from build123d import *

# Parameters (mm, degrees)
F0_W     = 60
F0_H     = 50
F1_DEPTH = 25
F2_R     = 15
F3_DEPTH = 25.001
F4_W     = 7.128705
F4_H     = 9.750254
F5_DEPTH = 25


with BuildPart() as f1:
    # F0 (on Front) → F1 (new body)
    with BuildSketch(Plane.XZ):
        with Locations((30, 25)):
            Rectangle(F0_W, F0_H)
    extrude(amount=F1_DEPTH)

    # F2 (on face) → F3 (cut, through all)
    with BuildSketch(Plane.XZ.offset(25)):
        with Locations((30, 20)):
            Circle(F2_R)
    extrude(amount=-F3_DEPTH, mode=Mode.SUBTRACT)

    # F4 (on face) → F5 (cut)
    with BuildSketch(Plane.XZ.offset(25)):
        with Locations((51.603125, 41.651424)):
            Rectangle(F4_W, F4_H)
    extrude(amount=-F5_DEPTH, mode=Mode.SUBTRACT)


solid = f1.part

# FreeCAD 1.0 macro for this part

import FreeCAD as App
import Part
import Sketcher

doc = App.newDocument("Part")
params = doc.addObject("Spreadsheet::Sheet", "Params")
for row, (alias, value) in enumerate([
    ("sketch1_width", "60 mm"),
    ("sketch1_height", "50 mm"),
    ("pad1_length", "25 mm"),
    ("sketch2_diameter", "30 mm"),
    ("pocket2_length", "25 mm"),
], start=1):
    params.set(f"A{row}", alias)
    params.set(f"B{row}", "=" + value)
    params.setAlias(f"B{row}", alias)

body = doc.addObject("PartDesign::Body", "Body")

# Sketch on XZ plane
sketch1 = body.newObject("Sketcher::SketchObject", "Sketch")
sketch1.AttachmentSupport = (doc.getObject("XZ_Plane"), [""])
sketch1.MapMode = "FlatFace"
sketch1.addGeometry(Part.LineSegment(App.Vector(0, 50, 0), App.Vector(0, 0, 0)), False)
sketch1.addGeometry(Part.LineSegment(App.Vector(0, 0, 0), App.Vector(60, 0, 0)), False)
sketch1.addGeometry(Part.LineSegment(App.Vector(60, 0, 0), App.Vector(60, 50, 0)), False)
sketch1.addGeometry(Part.LineSegment(App.Vector(60, 50, 0), App.Vector(0, 50, 0)), False)
sketch1.addConstraint(Sketcher.Constraint("Coincident", 0, 2, 1, 1))
sketch1.addConstraint(Sketcher.Constraint("Coincident", 1, 2, 2, 1))
sketch1.addConstraint(Sketcher.Constraint("Coincident", 2, 2, 3, 1))
sketch1.addConstraint(Sketcher.Constraint("Coincident", 3, 2, 0, 1))
sketch1.addConstraint(Sketcher.Constraint("Vertical", 0))
sketch1.addConstraint(Sketcher.Constraint("Horizontal", 1))
sketch1.addConstraint(Sketcher.Constraint("Vertical", 2))
sketch1.addConstraint(Sketcher.Constraint("Horizontal", 3))
sketch1.addConstraint(Sketcher.Constraint("Coincident", 0, 2, -1, 1))
sketch1.addConstraint(Sketcher.Constraint("DistanceX", 1, 1, 1, 2, 60.0))
sketch1.addConstraint(Sketcher.Constraint("DistanceY", 0, 2, 0, 1, 50.0))
sketch1.setExpression("Constraints[9]", "Params.sketch1_width")
sketch1.setExpression("Constraints[10]", "Params.sketch1_height")
pad1 = body.newObject("PartDesign::Pad", "Pad")
pad1.Profile = sketch1
pad1.setExpression("Length", "Params.pad1_length")

# Sketch on XZ plane
sketch2 = body.newObject("Sketcher::SketchObject", "Sketch001")
sketch2.AttachmentSupport = (doc.getObject("XZ_Plane"), [""])
sketch2.MapMode = "FlatFace"
sketch2.AttachmentOffset = App.Placement(App.Vector(0, 0, 25), App.Rotation())
sketch2.addGeometry(Part.Circle(App.Vector(30, 20, 0), App.Vector(0, 0, 1), 15), False)
sketch2.addConstraint(Sketcher.Constraint("Diameter", 0, 30.0))
sketch2.addConstraint(Sketcher.Constraint("DistanceX", -1, 1, 0, 3, 30.0))
sketch2.addConstraint(Sketcher.Constraint("DistanceY", -1, 1, 0, 3, 20.0))
sketch2.setExpression("Constraints[0]", "Params.sketch2_diameter")
pocket1 = body.newObject("PartDesign::Pocket", "Pocket")
pocket1.Profile = sketch2
pocket1.Type = "ThroughAll"

# Sketch on XZ plane
sketch3 = body.newObject("Sketcher::SketchObject", "Sketch002")
sketch3.AttachmentSupport = (doc.getObject("XZ_Plane"), [""])
sketch3.MapMode = "FlatFace"
sketch3.AttachmentOffset = App.Placement(App.Vector(0, 0, 25), App.Rotation())
sketch3.addGeometry(Part.LineSegment(App.Vector(48, 47, 0), App.Vector(48, 37, 0)), False)
sketch3.addGeometry(Part.LineSegment(App.Vector(48, 37, 0), App.Vector(55, 37, 0)), False)
sketch3.addGeometry(Part.LineSegment(App.Vector(55, 37, 0), App.Vector(55, 47, 0)), False)
sketch3.addGeometry(Part.LineSegment(App.Vector(55, 47, 0), App.Vector(48, 47, 0)), False)
sketch3.addConstraint(Sketcher.Constraint("Coincident", 0, 2, 1, 1))
sketch3.addConstraint(Sketcher.Constraint("Coincident", 1, 2, 2, 1))
sketch3.addConstraint(Sketcher.Constraint("Coincident", 2, 2, 3, 1))
sketch3.addConstraint(Sketcher.Constraint("Coincident", 3, 2, 0, 1))
sketch3.addConstraint(Sketcher.Constraint("Vertical", 0))
sketch3.addConstraint(Sketcher.Constraint("Horizontal", 1))
sketch3.addConstraint(Sketcher.Constraint("Vertical", 2))
sketch3.addConstraint(Sketcher.Constraint("Horizontal", 3))
sketch3.addConstraint(Sketcher.Constraint("DistanceX", 1, 1, 1, 2, 7.128705))
sketch3.addConstraint(Sketcher.Constraint("DistanceY", 0, 2, 0, 1, 9.750254))
sketch3.addConstraint(Sketcher.Constraint("DistanceY", -1, 1, 2, 2, 46.526551))
sketch3.addConstraint(Sketcher.Constraint("DistanceX", -1, 1, 0, 2, 48.038773))
pocket2 = body.newObject("PartDesign::Pocket", "Pocket001")
pocket2.Profile = sketch3
pocket2.setExpression("Length", "Params.pocket2_length")

doc.recompute()
